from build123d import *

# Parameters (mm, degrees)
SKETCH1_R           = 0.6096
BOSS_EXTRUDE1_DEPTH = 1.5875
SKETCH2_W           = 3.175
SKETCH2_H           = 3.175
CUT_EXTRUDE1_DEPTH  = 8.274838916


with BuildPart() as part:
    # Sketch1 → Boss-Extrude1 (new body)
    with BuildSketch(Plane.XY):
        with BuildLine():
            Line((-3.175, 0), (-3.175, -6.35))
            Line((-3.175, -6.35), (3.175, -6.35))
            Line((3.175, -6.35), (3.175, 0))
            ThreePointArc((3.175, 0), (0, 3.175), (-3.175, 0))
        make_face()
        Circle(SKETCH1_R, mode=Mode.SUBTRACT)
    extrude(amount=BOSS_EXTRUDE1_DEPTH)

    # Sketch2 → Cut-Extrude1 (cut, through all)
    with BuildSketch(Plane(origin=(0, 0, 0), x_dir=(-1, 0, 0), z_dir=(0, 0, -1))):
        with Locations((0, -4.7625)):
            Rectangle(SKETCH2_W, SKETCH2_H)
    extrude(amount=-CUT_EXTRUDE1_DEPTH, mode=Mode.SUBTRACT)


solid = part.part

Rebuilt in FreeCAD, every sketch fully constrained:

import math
import FreeCAD as App
import Part
import Sketcher
from FreeCAD import Vector
Q = App.Units.Quantity

doc = App.newDocument("Part")
params = doc.addObject("Spreadsheet::Sheet", "Params")
for row, (alias, value) in enumerate([
    ("sketch1_diameter", "0.048 in"),
    ("sketch1_radius", "0.125 in"),
    ("pad1_length", "0.0625 in"),
    ("sketch2_width", "0.125 in"),
], start=1):
    params.set(f"A{row}", alias)
    params.set(f"B{row}", "=" + value)
    params.setAlias(f"B{row}", alias)

body = doc.addObject("PartDesign::Body", "Body")

# Sketch on XY plane
sketch1 = doc.addObject("Sketcher::SketchObject", "Sketch")
body.addObject(sketch1)
sketch1.AttachmentSupport = (doc.XY_Plane, [""])
sketch1.MapMode = "FlatFace"
sketch1.addGeometry(Part.LineSegment(Vector(-3.2, 0, 0), Vector(-3.2, -6.3, 0)), False)
sketch1.addGeometry(Part.LineSegment(Vector(-3.2, -6.3, 0), Vector(3.2, -6.3, 0)), False)
sketch1.addGeometry(Part.LineSegment(Vector(3.2, -6.3, 0), Vector(3.2, 0, 0)), False)
sketch1.addGeometry(Part.ArcOfCircle(Part.Circle(Vector(0, 0, 0), Vector(0, 0, 1), 3.2), math.radians(0), math.radians(180)), False)
sketch1.addGeometry(Part.Circle(Vector(0, 0, 0), Vector(0, 0, 1), 0.6), False)
sketch1.addConstraint(Sketcher.Constraint("Coincident", 0, 2, 1, 1))
sketch1.addConstraint(Sketcher.Constraint("Coincident", 1, 2, 2, 1))
sketch1.addConstraint(Sketcher.Constraint("Tangent", 2, 2, 3, 1))
sketch1.addConstraint(Sketcher.Constraint("Tangent", 3, 2, 0, 1))
sketch1.addConstraint(Sketcher.Constraint("Vertical", 0))
sketch1.addConstraint(Sketcher.Constraint("Horizontal", 1))
sketch1.addConstraint(Sketcher.Constraint("Vertical", 2))
sketch1.addConstraint(Sketcher.Constraint("Coincident", 3, 3, -1, 1))
sketch1.addConstraint(Sketcher.Constraint("Coincident", 4, 3, -1, 1))
sketch1.addConstraint(Sketcher.Constraint("Equal", 1, 0))
sketch1.addConstraint(Sketcher.Constraint("Diameter", 4, Q("0.048 in")))
sketch1.addConstraint(Sketcher.Constraint("Radius", 3, Q("0.125 in")))
sketch1.setExpression("Constraints[10]", "Params.sketch1_diameter")
sketch1.setExpression("Constraints[11]", "Params.sketch1_radius")
pad1 = doc.addObject("PartDesign::Pad", "Pad")
body.addObject(pad1)
pad1.Profile = sketch1
pad1.setExpression("Length", "Params.pad1_length")

# Sketch on XY plane
sketch2 = doc.addObject("Sketcher::SketchObject", "Sketch001")
body.addObject(sketch2)
sketch2.AttachmentSupport = (doc.XY_Plane, [""])
sketch2.MapMode = "FlatFace"
sketch2.addGeometry(Part.LineSegment(Vector(1.6, -3.2, 0), Vector(1.6, -6.3, 0)), False)
sketch2.addGeometry(Part.LineSegment(Vector(1.6, -6.3, 0), Vector(-1.6, -6.3, 0)), False)
sketch2.addGeometry(Part.LineSegment(Vector(-1.6, -6.3, 0), Vector(-1.6, -3.2, 0)), False)
sketch2.addGeometry(Part.LineSegment(Vector(-1.6, -3.2, 0), Vector(1.6, -3.2, 0)), False)
sketch2.addConstraint(Sketcher.Constraint("Coincident", 0, 2, 1, 1))
sketch2.addConstraint(Sketcher.Constraint("Coincident", 1, 2, 2, 1))
sketch2.addConstraint(Sketcher.Constraint("Coincident", 2, 2, 3, 1))
sketch2.addConstraint(Sketcher.Constraint("Coincident", 3, 2, 0, 1))
sketch2.addConstraint(Sketcher.Constraint("Vertical", 0))
sketch2.addConstraint(Sketcher.Constraint("Horizontal", 1))
sketch2.addConstraint(Sketcher.Constraint("Vertical", 2))
sketch2.addConstraint(Sketcher.Constraint("Horizontal", 3))
sketch2.addConstraint(Sketcher.Constraint("Equal", 3, 0))
sketch2.addConstraint(Sketcher.Constraint("DistanceX", 1, 2, 1, 1, Q("0.125 in")))
sketch2.addConstraint(Sketcher.Constraint("DistanceY", 0, 2, -1, 1, Q("0.25 in")))
sketch2.addConstraint(Sketcher.Constraint("DistanceX", -1, 1, 0, 2, Q("0.0625 in")))
sketch2.setExpression("Constraints[9]", "Params.sketch2_width")
pocket1 = doc.addObject("PartDesign::Pocket", "Pocket")
body.addObject(pocket1)
pocket1.Profile = sketch2
pocket1.Type = "ThroughAll"
pocket1.Reversed = True

doc.recompute()
